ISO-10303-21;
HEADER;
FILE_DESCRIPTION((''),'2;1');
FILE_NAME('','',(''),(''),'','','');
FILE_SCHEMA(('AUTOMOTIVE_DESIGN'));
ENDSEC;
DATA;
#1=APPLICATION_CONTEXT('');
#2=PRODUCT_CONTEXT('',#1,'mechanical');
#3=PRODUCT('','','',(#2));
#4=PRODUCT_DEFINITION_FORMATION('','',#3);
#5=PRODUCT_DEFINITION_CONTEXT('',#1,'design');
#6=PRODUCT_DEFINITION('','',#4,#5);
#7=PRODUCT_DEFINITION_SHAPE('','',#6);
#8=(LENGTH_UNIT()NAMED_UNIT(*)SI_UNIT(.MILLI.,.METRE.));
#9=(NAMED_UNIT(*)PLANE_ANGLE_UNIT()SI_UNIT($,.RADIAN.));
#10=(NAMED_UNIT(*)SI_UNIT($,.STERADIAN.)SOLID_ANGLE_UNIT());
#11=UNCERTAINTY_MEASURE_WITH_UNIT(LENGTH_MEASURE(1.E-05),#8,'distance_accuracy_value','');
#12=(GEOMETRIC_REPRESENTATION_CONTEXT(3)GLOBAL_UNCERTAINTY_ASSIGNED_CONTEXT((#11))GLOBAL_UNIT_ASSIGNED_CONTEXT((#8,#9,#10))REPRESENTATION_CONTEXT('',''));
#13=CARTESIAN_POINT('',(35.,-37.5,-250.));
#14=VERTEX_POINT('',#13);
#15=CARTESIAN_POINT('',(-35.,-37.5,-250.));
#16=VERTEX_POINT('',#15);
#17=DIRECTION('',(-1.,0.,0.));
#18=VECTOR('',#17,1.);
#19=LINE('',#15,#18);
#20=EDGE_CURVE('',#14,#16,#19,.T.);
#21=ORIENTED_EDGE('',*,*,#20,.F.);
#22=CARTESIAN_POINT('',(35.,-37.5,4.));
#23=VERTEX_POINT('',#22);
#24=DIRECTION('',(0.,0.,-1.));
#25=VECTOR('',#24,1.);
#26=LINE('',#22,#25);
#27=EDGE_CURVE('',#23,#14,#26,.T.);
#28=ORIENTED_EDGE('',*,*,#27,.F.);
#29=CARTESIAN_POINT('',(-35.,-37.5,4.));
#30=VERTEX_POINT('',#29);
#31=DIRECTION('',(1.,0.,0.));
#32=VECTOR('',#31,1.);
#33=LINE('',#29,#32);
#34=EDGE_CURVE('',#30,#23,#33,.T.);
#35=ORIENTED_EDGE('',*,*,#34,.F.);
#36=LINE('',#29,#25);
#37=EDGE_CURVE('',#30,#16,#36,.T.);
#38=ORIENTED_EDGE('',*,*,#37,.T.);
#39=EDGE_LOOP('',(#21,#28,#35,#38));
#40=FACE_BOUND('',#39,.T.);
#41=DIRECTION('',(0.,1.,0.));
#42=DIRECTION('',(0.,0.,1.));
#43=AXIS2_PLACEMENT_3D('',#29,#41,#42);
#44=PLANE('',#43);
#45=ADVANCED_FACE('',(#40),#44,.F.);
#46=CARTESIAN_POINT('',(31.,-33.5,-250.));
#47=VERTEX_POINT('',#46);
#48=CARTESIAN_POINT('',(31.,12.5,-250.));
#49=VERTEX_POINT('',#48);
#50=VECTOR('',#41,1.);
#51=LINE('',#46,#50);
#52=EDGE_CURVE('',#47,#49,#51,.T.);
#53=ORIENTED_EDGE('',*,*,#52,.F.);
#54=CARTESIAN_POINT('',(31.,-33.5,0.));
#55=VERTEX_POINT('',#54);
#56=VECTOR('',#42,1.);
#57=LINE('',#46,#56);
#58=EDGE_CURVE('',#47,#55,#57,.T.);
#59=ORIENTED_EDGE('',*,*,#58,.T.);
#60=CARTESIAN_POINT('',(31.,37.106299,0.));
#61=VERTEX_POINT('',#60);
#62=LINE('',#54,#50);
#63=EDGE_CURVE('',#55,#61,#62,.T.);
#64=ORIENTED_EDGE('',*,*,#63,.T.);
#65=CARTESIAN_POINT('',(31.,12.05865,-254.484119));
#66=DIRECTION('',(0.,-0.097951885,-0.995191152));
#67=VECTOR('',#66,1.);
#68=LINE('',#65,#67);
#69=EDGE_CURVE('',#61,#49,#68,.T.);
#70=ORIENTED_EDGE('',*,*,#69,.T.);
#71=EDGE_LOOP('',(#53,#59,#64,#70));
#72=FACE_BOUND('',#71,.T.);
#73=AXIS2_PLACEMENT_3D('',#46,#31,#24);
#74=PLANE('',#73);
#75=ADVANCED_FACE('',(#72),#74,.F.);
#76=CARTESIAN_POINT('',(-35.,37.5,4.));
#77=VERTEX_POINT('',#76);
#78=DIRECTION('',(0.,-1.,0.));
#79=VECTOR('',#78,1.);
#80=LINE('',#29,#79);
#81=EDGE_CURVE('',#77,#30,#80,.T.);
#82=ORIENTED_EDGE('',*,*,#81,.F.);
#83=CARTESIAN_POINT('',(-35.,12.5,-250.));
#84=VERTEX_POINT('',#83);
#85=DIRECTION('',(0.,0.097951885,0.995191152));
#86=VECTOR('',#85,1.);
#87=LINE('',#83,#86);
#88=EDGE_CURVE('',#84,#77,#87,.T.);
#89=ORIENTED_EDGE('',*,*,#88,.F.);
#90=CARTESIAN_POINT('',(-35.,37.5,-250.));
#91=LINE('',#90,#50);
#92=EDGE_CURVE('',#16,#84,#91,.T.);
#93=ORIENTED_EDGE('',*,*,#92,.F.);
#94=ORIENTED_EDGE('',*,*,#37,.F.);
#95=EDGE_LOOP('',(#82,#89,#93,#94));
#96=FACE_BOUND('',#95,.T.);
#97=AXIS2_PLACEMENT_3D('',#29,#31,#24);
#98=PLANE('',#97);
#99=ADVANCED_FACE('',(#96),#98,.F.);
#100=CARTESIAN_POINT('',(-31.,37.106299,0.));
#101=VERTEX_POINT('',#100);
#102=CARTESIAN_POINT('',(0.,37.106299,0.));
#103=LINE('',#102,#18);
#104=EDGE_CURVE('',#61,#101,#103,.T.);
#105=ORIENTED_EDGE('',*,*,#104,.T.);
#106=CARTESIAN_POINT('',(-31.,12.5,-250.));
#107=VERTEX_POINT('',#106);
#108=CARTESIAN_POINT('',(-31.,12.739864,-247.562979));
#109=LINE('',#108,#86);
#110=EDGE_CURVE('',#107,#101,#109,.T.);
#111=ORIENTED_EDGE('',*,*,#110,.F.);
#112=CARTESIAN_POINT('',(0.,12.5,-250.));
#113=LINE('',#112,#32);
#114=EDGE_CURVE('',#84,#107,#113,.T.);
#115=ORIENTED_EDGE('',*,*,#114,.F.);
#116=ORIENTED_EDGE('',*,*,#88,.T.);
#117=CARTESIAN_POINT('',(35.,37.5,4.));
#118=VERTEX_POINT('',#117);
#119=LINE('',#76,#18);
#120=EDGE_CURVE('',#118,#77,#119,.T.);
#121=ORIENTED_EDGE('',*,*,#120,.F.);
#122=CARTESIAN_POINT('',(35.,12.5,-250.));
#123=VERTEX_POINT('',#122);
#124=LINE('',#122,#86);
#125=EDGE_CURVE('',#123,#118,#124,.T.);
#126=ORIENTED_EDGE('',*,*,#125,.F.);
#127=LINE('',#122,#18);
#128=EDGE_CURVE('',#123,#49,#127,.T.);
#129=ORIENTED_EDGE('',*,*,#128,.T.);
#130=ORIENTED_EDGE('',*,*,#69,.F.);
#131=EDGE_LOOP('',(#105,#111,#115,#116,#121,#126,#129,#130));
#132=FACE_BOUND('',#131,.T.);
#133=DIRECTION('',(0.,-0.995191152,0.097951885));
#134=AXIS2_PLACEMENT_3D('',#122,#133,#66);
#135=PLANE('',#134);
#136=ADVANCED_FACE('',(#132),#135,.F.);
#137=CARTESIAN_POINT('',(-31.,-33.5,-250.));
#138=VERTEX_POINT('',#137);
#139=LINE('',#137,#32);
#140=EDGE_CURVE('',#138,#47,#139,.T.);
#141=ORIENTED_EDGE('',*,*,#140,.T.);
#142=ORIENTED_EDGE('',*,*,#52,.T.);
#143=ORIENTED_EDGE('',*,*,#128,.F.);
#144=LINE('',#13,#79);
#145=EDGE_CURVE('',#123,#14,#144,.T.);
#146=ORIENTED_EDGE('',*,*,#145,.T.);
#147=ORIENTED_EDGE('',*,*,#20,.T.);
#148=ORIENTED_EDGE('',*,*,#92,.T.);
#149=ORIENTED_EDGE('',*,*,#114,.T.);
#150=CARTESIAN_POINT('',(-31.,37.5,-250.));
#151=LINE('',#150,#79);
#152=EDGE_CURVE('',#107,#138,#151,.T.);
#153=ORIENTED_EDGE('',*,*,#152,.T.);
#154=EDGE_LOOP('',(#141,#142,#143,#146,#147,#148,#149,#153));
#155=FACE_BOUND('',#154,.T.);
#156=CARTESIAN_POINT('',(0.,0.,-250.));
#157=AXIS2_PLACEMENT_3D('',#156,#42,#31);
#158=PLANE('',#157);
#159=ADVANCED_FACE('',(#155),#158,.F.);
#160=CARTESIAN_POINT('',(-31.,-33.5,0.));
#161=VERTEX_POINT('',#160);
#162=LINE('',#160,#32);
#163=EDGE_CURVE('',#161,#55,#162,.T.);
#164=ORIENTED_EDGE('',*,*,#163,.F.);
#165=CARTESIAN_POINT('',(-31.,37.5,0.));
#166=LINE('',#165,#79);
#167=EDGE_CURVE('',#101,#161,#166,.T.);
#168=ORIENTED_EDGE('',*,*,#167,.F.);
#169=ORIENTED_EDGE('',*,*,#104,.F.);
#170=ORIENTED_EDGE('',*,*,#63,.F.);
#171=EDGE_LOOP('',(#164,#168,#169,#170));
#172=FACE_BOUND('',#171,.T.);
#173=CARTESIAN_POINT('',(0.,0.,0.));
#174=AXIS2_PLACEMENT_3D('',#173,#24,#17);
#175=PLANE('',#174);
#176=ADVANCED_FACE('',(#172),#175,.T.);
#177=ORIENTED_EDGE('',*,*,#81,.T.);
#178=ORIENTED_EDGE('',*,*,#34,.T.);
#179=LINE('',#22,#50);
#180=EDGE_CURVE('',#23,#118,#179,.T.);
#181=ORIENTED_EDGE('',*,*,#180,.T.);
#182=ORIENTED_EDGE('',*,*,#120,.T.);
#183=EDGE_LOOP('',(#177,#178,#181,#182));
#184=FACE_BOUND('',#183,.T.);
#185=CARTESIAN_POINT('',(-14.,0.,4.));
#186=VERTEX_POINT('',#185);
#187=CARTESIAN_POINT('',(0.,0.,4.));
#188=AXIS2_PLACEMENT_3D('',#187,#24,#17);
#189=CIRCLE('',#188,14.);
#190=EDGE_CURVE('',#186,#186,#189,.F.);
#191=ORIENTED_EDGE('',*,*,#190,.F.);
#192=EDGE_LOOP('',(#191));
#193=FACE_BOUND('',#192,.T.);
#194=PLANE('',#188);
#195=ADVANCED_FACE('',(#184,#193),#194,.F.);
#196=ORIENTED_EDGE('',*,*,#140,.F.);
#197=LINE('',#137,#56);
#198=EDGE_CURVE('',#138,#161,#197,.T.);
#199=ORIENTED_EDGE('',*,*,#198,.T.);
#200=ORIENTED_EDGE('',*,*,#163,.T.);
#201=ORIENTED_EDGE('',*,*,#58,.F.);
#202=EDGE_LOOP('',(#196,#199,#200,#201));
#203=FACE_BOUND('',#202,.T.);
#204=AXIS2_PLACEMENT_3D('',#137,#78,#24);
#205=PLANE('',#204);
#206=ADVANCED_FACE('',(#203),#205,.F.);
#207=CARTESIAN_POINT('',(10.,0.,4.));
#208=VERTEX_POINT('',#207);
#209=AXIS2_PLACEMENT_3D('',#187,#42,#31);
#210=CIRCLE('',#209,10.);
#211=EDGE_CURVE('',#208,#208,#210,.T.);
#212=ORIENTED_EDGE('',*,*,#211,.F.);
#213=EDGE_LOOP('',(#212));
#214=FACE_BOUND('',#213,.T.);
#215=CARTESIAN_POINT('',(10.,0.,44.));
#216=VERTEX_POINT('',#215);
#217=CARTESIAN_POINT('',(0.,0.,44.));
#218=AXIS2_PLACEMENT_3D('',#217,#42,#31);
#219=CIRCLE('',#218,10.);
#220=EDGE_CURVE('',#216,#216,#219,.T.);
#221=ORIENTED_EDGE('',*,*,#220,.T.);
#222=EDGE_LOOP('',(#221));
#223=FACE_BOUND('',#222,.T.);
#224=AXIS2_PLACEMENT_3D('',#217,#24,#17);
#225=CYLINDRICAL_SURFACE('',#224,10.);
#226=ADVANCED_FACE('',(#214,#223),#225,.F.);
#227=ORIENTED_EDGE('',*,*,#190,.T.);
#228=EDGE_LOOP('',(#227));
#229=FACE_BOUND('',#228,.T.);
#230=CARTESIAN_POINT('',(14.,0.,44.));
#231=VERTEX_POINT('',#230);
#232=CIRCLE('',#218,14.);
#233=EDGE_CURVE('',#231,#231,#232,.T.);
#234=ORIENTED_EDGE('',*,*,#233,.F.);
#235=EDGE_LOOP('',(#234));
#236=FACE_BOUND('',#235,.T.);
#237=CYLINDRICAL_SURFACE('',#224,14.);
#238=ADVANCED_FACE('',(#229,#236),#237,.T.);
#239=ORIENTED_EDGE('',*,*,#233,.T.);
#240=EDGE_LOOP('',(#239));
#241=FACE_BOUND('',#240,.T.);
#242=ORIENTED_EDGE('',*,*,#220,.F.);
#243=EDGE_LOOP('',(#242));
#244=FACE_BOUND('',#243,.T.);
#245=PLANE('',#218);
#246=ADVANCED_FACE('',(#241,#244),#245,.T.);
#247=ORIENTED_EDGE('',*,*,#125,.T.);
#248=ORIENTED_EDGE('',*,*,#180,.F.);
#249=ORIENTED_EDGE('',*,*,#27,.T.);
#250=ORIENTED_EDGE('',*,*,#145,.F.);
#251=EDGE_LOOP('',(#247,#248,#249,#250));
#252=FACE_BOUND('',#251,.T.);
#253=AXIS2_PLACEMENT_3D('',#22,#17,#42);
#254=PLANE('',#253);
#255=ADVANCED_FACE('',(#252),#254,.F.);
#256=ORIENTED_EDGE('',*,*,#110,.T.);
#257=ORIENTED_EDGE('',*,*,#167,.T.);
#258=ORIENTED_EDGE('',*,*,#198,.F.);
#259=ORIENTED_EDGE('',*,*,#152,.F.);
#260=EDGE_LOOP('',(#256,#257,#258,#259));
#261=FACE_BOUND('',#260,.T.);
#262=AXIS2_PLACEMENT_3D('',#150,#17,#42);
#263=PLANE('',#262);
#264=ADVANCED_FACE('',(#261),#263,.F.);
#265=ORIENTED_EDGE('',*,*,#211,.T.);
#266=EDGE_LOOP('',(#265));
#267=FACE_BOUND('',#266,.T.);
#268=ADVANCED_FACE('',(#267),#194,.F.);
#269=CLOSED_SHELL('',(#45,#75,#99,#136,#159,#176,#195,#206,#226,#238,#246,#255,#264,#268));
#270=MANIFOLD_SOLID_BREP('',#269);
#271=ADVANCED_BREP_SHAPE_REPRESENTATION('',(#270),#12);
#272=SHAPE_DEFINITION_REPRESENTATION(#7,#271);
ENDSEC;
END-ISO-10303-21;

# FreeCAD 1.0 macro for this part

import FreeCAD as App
import Part
import Sketcher
from FreeCAD import Vector

doc = App.newDocument("Part")
body = doc.addObject("PartDesign::Body", "Body")

sketch1 = doc.addObject("Sketcher::SketchObject", "Sketch")
body.addObject(sketch1)
sketch1.AttachmentSupport = (doc.XY_Plane, [""])
sketch1.MapMode = "FlatFace"
sketch1.addGeometry(Part.LineSegment(Vector(-35, 37.5, 0), Vector(-35, -37.5, 0)), False)
sketch1.addGeometry(Part.LineSegment(Vector(-35, -37.5, 0), Vector(35, -37.5, 0)), False)
sketch1.addGeometry(Part.LineSegment(Vector(35, -37.5, 0), Vector(35, 37.5, 0)), False)
sketch1.addGeometry(Part.LineSegment(Vector(35, 37.5, 0), Vector(-35, 37.5, 0)), False)
sketch1.addConstraint(Sketcher.Constraint("Coincident", 0, 2, 1, 1))
sketch1.addConstraint(Sketcher.Constraint("Coincident", 1, 2, 2, 1))
sketch1.addConstraint(Sketcher.Constraint("Coincident", 2, 2, 3, 1))
sketch1.addConstraint(Sketcher.Constraint("Coincident", 3, 2, 0, 1))
sketch1.addConstraint(Sketcher.Constraint("Vertical", 0))
sketch1.addConstraint(Sketcher.Constraint("Horizontal", 1))
sketch1.addConstraint(Sketcher.Constraint("Vertical", 2))
sketch1.addConstraint(Sketcher.Constraint("Horizontal", 3))
sketch1.addConstraint(Sketcher.Constraint("Symmetric", 0, 2, 2, 2, -1, 1))
sketch1.addConstraint(Sketcher.Constraint("DistanceX", 1, 1, 1, 2, 70.0))
sketch1.addConstraint(Sketcher.Constraint("DistanceY", 0, 2, 0, 1, 75.0))
pad1 = doc.addObject("PartDesign::Pad", "Pad")
body.addObject(pad1)
pad1.Profile = sketch1
pad1.Length = 4

sketch2 = doc.addObject("Sketcher::SketchObject", "Sketch001")
body.addObject(sketch2)
sketch2.AttachmentSupport = (doc.XY_Plane, [""])
sketch2.MapMode = "FlatFace"
sketch2.addGeometry(Part.LineSegment(Vector(-35, -37.5, 0), Vector(-35, 37.5, 0)), False)
sketch2.addGeometry(Part.LineSegment(Vector(-35, 37.5, 0), Vector(-31, 37.5, 0)), False)
sketch2.addGeometry(Part.LineSegment(Vector(-31, 37.5, 0), Vector(-31, -33.5, 0)), False)
sketch2.addGeometry(Part.LineSegment(Vector(-31, -33.5, 0), Vector(31, -33.5, 0)), False)
sketch2.addGeometry(Part.LineSegment(Vector(31, -33.5, 0), Vector(31, 37.5, 0)), False)
sketch2.addGeometry(Part.LineSegment(Vector(31, 37.5, 0), Vector(35, 37.5, 0)), False)
sketch2.addGeometry(Part.LineSegment(Vector(35, 37.5, 0), Vector(35, -37.5, 0)), False)
sketch2.addGeometry(Part.LineSegment(Vector(35, -37.5, 0), Vector(-35, -37.5, 0)), False)
sketch2.addConstraint(Sketcher.Constraint("Coincident", 0, 2, 1, 1))
sketch2.addConstraint(Sketcher.Constraint("Coincident", 1, 2, 2, 1))
sketch2.addConstraint(Sketcher.Constraint("Coincident", 2, 2, 3, 1))
sketch2.addConstraint(Sketcher.Constraint("Coincident", 3, 2, 4, 1))
sketch2.addConstraint(Sketcher.Constraint("Coincident", 4, 2, 5, 1))
sketch2.addConstraint(Sketcher.Constraint("Coincident", 5, 2, 6, 1))
sketch2.addConstraint(Sketcher.Constraint("Coincident", 6, 2, 7, 1))
sketch2.addConstraint(Sketcher.Constraint("Coincident", 7, 2, 0, 1))
sketch2.addConstraint(Sketcher.Constraint("Vertical", 0))
sketch2.addConstraint(Sketcher.Constraint("Horizontal", 1))
sketch2.addConstraint(Sketcher.Constraint("Vertical", 2))
sketch2.addConstraint(Sketcher.Constraint("Horizontal", 3))
sketch2.addConstraint(Sketcher.Constraint("Vertical", 4))
sketch2.addConstraint(Sketcher.Constraint("Horizontal", 5))
sketch2.addConstraint(Sketcher.Constraint("Vertical", 6))
sketch2.addConstraint(Sketcher.Constraint("Horizontal", 7))
sketch2.addConstraint(Sketcher.Constraint("Symmetric", 0, 2, 6, 2, -1, 1))
sketch2.addConstraint(Sketcher.Constraint("Symmetric", 1, 2, 4, 2, -2))
sketch2.addConstraint(Sketcher.Constraint("DistanceX", 1, 1, 1, 2, 4.0))
sketch2.addConstraint(Sketcher.Constraint("DistanceX", 3, 1, 3, 2, 62.0))
sketch2.addConstraint(Sketcher.Constraint("DistanceY", 0, 1, 0, 2, 75.0))
sketch2.addConstraint(Sketcher.Constraint("DistanceY", 2, 2, 2, 1, 71.0))
pad2 = doc.addObject("PartDesign::Pad", "Pad001")
body.addObject(pad2)
pad2.Profile = sketch2
pad2.Length = 250
pad2.Reversed = True

sketch3 = doc.addObject("Sketcher::SketchObject", "Sketch002")
body.addObject(sketch3)
sketch3.AttachmentSupport = (doc.YZ_Plane, [""])
sketch3.MapMode = "FlatFace"
sketch3.AttachmentOffset = App.Placement(Vector(0, 0, -35), App.Rotation())
sketch3.addGeometry(Part.LineSegment(Vector(37.5, 4, 0), Vector(37.5, -250, 0)), False)
sketch3.addGeometry(Part.LineSegment(Vector(37.5, -250, 0), Vector(12.5, -250, 0)), False)
sketch3.addGeometry(Part.LineSegment(Vector(12.5, -250, 0), Vector(37.5, 4, 0)), False)
sketch3.addConstraint(Sketcher.Constraint("Coincident", 0, 2, 1, 1))
sketch3.addConstraint(Sketcher.Constraint("Coincident", 1, 2, 2, 1))
sketch3.addConstraint(Sketcher.Constraint("Coincident", 2, 2, 0, 1))
sketch3.addConstraint(Sketcher.Constraint("Vertical", 0))
sketch3.addConstraint(Sketcher.Constraint("Horizontal", 1))
sketch3.addConstraint(Sketcher.Constraint("DistanceX", 1, 2, 1, 1, 25.0))
sketch3.addConstraint(Sketcher.Constraint("DistanceY", 0, 2, 0, 1, 254.0))
sketch3.addConstraint(Sketcher.Constraint("DistanceY", 0, 2, -1, 1, 250.0))
sketch3.addConstraint(Sketcher.Constraint("DistanceX", -1, 1, 0, 2, 37.5))
pocket1 = doc.addObject("PartDesign::Pocket", "Pocket")
body.addObject(pocket1)
pocket1.Profile = sketch3
pocket1.Type = "ThroughAll"
pocket1.Reversed = True

sketch4 = doc.addObject("Sketcher::SketchObject", "Sketch003")
body.addObject(sketch4)
sketch4.AttachmentSupport = (doc.XY_Plane, [""])
sketch4.MapMode = "FlatFace"
sketch4.AttachmentOffset = App.Placement(Vector(0, 0, 4), App.Rotation())
sketch4.addGeometry(Part.Circle(Vector(0, 0, 0), Vector(0, 0, 1), 14), False)
sketch4.addGeometry(Part.Circle(Vector(0, 0, 0), Vector(0, 0, 1), 10), False)
sketch4.addConstraint(Sketcher.Constraint("Coincident", 0, 3, -1, 1))
sketch4.addConstraint(Sketcher.Constraint("Coincident", 1, 3, -1, 1))
sketch4.addConstraint(Sketcher.Constraint("Diameter", 0, 28.0))
sketch4.addConstraint(Sketcher.Constraint("Diameter", 1, 20.0))
pad3 = doc.addObject("PartDesign::Pad", "Pad002")
body.addObject(pad3)
pad3.Profile = sketch4
pad3.Length = 40

doc.recompute()
